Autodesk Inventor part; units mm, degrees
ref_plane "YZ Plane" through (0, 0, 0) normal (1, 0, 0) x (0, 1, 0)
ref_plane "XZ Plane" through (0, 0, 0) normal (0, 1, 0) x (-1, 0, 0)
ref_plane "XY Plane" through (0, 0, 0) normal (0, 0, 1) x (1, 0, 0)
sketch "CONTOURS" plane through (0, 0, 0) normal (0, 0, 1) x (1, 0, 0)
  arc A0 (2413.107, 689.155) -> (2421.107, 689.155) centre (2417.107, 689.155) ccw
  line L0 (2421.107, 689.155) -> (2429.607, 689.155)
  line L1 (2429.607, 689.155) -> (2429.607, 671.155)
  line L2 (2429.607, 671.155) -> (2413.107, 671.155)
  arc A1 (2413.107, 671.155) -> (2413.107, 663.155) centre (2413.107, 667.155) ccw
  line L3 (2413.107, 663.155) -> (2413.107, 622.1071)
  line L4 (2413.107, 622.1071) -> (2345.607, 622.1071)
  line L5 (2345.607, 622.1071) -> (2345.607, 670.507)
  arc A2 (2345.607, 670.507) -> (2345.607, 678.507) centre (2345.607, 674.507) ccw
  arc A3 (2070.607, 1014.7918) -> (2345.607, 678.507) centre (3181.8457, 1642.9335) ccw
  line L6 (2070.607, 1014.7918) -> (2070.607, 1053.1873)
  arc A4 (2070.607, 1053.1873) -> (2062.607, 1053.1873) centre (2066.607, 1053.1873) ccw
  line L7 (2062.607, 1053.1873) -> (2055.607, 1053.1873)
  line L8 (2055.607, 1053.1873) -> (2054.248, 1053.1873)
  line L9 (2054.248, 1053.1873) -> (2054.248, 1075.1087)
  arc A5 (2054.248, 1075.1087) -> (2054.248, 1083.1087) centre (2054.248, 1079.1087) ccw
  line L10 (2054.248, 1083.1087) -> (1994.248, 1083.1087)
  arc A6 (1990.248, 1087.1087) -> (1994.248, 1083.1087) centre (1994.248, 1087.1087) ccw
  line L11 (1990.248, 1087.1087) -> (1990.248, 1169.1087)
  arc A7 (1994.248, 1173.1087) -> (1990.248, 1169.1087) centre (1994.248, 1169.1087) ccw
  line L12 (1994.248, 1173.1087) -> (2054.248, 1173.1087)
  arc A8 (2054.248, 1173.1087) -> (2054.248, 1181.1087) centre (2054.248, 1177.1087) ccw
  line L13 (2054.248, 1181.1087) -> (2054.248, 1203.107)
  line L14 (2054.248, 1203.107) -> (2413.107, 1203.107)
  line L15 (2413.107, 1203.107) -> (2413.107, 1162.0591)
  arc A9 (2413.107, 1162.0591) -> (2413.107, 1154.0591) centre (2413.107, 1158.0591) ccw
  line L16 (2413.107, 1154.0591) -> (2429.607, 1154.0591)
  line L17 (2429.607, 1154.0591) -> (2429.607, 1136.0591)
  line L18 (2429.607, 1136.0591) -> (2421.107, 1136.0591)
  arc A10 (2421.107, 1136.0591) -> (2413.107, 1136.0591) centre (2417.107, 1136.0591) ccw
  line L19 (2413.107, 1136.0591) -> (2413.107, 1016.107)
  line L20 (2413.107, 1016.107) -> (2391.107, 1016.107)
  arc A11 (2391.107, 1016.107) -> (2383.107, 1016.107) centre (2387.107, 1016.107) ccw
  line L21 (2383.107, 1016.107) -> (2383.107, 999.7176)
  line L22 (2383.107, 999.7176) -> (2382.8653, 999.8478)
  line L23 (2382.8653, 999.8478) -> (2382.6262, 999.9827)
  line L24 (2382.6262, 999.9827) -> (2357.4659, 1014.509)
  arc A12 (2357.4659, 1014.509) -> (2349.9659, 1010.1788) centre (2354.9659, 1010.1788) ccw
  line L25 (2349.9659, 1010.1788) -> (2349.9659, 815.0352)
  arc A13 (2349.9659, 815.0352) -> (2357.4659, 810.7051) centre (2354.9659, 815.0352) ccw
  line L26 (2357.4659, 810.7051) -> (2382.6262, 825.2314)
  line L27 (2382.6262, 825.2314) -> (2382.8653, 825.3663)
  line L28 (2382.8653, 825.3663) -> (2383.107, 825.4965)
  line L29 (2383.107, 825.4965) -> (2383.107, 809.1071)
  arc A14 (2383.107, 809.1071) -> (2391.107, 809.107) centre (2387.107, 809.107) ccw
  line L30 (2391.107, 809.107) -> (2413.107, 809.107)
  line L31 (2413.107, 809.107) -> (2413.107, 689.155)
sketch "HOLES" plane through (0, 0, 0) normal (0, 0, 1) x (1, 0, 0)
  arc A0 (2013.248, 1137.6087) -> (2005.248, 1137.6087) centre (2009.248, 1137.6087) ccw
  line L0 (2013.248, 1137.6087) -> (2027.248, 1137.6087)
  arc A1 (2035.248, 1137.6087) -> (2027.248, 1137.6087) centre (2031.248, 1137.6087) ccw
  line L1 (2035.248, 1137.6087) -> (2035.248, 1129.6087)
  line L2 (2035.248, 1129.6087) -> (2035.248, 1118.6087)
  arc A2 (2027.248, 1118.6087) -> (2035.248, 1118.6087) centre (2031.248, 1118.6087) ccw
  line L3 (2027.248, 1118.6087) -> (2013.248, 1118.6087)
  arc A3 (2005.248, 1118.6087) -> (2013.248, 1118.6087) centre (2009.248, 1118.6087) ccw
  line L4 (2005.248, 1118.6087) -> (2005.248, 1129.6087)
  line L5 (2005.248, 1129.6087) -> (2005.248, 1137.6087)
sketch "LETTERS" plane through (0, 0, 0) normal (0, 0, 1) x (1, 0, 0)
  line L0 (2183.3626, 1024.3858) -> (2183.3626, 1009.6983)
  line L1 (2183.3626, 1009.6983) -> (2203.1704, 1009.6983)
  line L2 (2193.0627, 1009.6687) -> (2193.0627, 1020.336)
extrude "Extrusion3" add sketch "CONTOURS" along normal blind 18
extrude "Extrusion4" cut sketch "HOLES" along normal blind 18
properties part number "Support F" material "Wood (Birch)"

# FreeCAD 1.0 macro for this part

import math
import FreeCAD as App
import Part
import Sketcher
from FreeCAD import Vector
Q = App.Units.Quantity

doc = App.newDocument("Part")
params = doc.addObject("Spreadsheet::Sheet", "Params")
for row, (alias, value) in enumerate([
    ("sketch1_radius", "4 mm"),
    ("sketch1_radius2", "5 mm"),
    ("sketch1_width", "22 mm"),
    ("sketch1_width2", "60 mm"),
    ("sketch1_height", "18 mm"),
    ("pad1_length", "18 mm"),
    ("sketch2_radius", "4 mm"),
    ("sketch2_width", "14 mm"),
    ("sketch2_height", "19 mm"),
    ("pocket1_length", "18 mm"),
], start=1):
    params.set(f"A{row}", alias)
    params.set(f"B{row}", "=" + value)
    params.setAlias(f"B{row}", alias)

body = doc.addObject("PartDesign::Body", "Body")

sketch1 = body.newObject("Sketcher::SketchObject", "Sketch")
sketch1.AttachmentSupport = (doc.getObject("XY_Plane"), [""])
sketch1.MapMode = "FlatFace"
sketch1.addGeometry([
    Part.ArcOfCircle(Part.Circle(Vector(2417.107, 689.155, 0), Vector(0, 0, 1), 4), math.radians(180), math.radians(360)),
    Part.LineSegment(Vector(2413.107, 689.155, 0), Vector(2413.107, 809.107, 0)),
    Part.LineSegment(Vector(2413.107, 809.107, 0), Vector(2391.107, 809.107, 0)),
    Part.ArcOfCircle(Part.Circle(Vector(2387.107, 809.107, 0), Vector(0, 0, 1), 4), math.radians(179.998568), math.radians(360)),
    Part.LineSegment(Vector(2383.107, 809.1071, 0), Vector(2383.107, 825.4965, 0)),
    Part.LineSegment(Vector(2383.107, 825.4965, 0), Vector(2382.8653, 825.3663, 0)),
    Part.LineSegment(Vector(2382.8653, 825.3663, 0), Vector(2382.6262, 825.2314, 0)),
    Part.LineSegment(Vector(2382.6262, 825.2314, 0), Vector(2357.4659, 810.7051, 0)),
    Part.ArcOfCircle(Part.Circle(Vector(2354.9659, 815.0352, 0), Vector(0, 0, 1), 5), math.radians(180), math.radians(300.000155)),
    Part.LineSegment(Vector(2349.9659, 815.0352, 0), Vector(2349.9659, 1010.1788, 0)),
    Part.ArcOfCircle(Part.Circle(Vector(2354.9659, 1010.1788, 0), Vector(0, 0, 1), 5.000063), math.radians(60.000418), math.radians(180)),
    Part.LineSegment(Vector(2357.4659, 1014.509, 0), Vector(2382.6262, 999.9827, 0)),
    Part.LineSegment(Vector(2382.6262, 999.9827, 0), Vector(2382.8653, 999.8478, 0)),
    Part.LineSegment(Vector(2382.8653, 999.8478, 0), Vector(2383.107, 999.7176, 0)),
    Part.LineSegment(Vector(2383.107, 999.7176, 0), Vector(2383.107, 1016.107, 0)),
    Part.ArcOfCircle(Part.Circle(Vector(2387.107, 1016.107, 0), Vector(0, 0, 1), 4), math.radians(0), math.radians(180)),
    Part.LineSegment(Vector(2391.107, 1016.107, 0), Vector(2413.107, 1016.107, 0)),
    Part.LineSegment(Vector(2413.107, 1016.107, 0), Vector(2413.107, 1136.0591, 0)),
    Part.ArcOfCircle(Part.Circle(Vector(2417.107, 1136.0591, 0), Vector(0, 0, 1), 4), math.radians(0), math.radians(180)),
    Part.LineSegment(Vector(2421.107, 1136.0591, 0), Vector(2429.607, 1136.0591, 0)),
    Part.LineSegment(Vector(2429.607, 1136.0591, 0), Vector(2429.607, 1154.0591, 0)),
    Part.LineSegment(Vector(2429.607, 1154.0591, 0), Vector(2413.107, 1154.0591, 0)),
    Part.ArcOfCircle(Part.Circle(Vector(2413.107, 1158.0591, 0), Vector(0, 0, 1), 4), math.radians(90), math.radians(270)),
    Part.LineSegment(Vector(2413.107, 1162.0591, 0), Vector(2413.107, 1203.107, 0)),
    Part.LineSegment(Vector(2413.107, 1203.107, 0), Vector(2054.248, 1203.107, 0)),
    Part.LineSegment(Vector(2054.248, 1203.107, 0), Vector(2054.248, 1181.1087, 0)),
    Part.ArcOfCircle(Part.Circle(Vector(2054.248, 1177.1087, 0), Vector(0, 0, 1), 4), math.radians(-90), math.radians(90)),
    Part.LineSegment(Vector(2054.248, 1173.1087, 0), Vector(1994.248, 1173.1087, 0)),
    Part.ArcOfCircle(Part.Circle(Vector(1994.248, 1169.1087, 0), Vector(0, 0, 1), 4), math.radians(90), math.radians(180)),
    Part.LineSegment(Vector(1990.248, 1169.1087, 0), Vector(1990.248, 1087.1087, 0)),
    Part.ArcOfCircle(Part.Circle(Vector(1994.248, 1087.1087, 0), Vector(0, 0, 1), 4), math.radians(180), math.radians(270)),
    Part.LineSegment(Vector(1994.248, 1083.1087, 0), Vector(2054.248, 1083.1087, 0)),
    Part.ArcOfCircle(Part.Circle(Vector(2054.248, 1079.1087, 0), Vector(0, 0, 1), 4), math.radians(-90), math.radians(90)),
    Part.LineSegment(Vector(2054.248, 1075.1087, 0), Vector(2054.248, 1053.1873, 0)),
    Part.LineSegment(Vector(2054.248, 1053.1873, 0), Vector(2062.607, 1053.1873, 0)),
    Part.ArcOfCircle(Part.Circle(Vector(2066.607, 1053.1873, 0), Vector(0, 0, 1), 4), math.radians(0), math.radians(180)),
    Part.LineSegment(Vector(2070.607, 1053.1873, 0), Vector(2070.607, 1014.7918, 0)),
    Part.ArcOfCircle(Part.Circle(Vector(3181.847854, 1642.934974, 0), Vector(0, 0, 1), 1276.4874), math.radians(-150.522137), math.radians(-130.928062)),
    Part.ArcOfCircle(Part.Circle(Vector(2345.607, 674.507, 0), Vector(0, 0, 1), 4), math.radians(-90), math.radians(90)),
    Part.LineSegment(Vector(2345.607, 670.507, 0), Vector(2345.607, 622.1071, 0)),
    Part.LineSegment(Vector(2345.607, 622.1071, 0), Vector(2413.107, 622.1071, 0)),
    Part.LineSegment(Vector(2413.107, 622.1071, 0), Vector(2413.107, 663.155, 0)),
    Part.ArcOfCircle(Part.Circle(Vector(2413.107, 667.155, 0), Vector(0, 0, 1), 4), math.radians(90), math.radians(270)),
    Part.LineSegment(Vector(2413.107, 671.155, 0), Vector(2429.607, 671.155, 0)),
    Part.LineSegment(Vector(2429.607, 671.155, 0), Vector(2429.607, 689.155, 0)),
    Part.LineSegment(Vector(2429.607, 689.155, 0), Vector(2421.107, 689.155, 0)),
], False)
sketch1.addConstraint([
    Sketcher.Constraint("Tangent", 0, 1, 1, 1),
    Sketcher.Constraint("Coincident", 1, 2, 2, 1),
    Sketcher.Constraint("Coincident", 2, 2, 3, 2),
    Sketcher.Constraint("Tangent", 3, 1, 4, 1),
    Sketcher.Constraint("Coincident", 4, 2, 5, 1),
    Sketcher.Constraint("Coincident", 5, 2, 6, 1),
    Sketcher.Constraint("Coincident", 6, 2, 7, 1),
    Sketcher.Constraint("Tangent", 7, 2, 8, 2),
    Sketcher.Constraint("Tangent", 8, 1, 9, 1),
    Sketcher.Constraint("Tangent", 9, 2, 10, 2),
    Sketcher.Constraint("Tangent", 10, 1, 11, 1),
    Sketcher.Constraint("Coincident", 11, 2, 12, 1),
    Sketcher.Constraint("Coincident", 12, 2, 13, 1),
    Sketcher.Constraint("Coincident", 13, 2, 14, 1),
    Sketcher.Constraint("Tangent", 14, 2, 15, 2),
    Sketcher.Constraint("Coincident", 15, 1, 16, 1),
    Sketcher.Constraint("Coincident", 16, 2, 17, 1),
    Sketcher.Constraint("Tangent", 17, 2, 18, 2),
    Sketcher.Constraint("Coincident", 18, 1, 19, 1),
    Sketcher.Constraint("Coincident", 19, 2, 20, 1),
    Sketcher.Constraint("Coincident", 20, 2, 21, 1),
    Sketcher.Constraint("Tangent", 21, 2, 22, 2),
    Sketcher.Constraint("Coincident", 22, 1, 23, 1),
    Sketcher.Constraint("Coincident", 23, 2, 24, 1),
    Sketcher.Constraint("Coincident", 24, 2, 25, 1),
    Sketcher.Constraint("Coincident", 25, 2, 26, 2),
    Sketcher.Constraint("Tangent", 26, 1, 27, 1),
    Sketcher.Constraint("Tangent", 27, 2, 28, 1),
    Sketcher.Constraint("Tangent", 28, 2, 29, 1),
    Sketcher.Constraint("Tangent", 29, 2, 30, 1),
    Sketcher.Constraint("Tangent", 30, 2, 31, 1),
    Sketcher.Constraint("Tangent", 31, 2, 32, 2),
    Sketcher.Constraint("Coincident", 32, 1, 33, 1),
    Sketcher.Constraint("Coincident", 33, 2, 34, 1),
    Sketcher.Constraint("Coincident", 34, 2, 35, 2),
    Sketcher.Constraint("Tangent", 35, 1, 36, 1),
    Sketcher.Constraint("Coincident", 36, 2, 37, 1),
    Sketcher.Constraint("Coincident", 37, 2, 38, 2),
    Sketcher.Constraint("Coincident", 38, 1, 39, 1),
    Sketcher.Constraint("Coincident", 39, 2, 40, 1),
    Sketcher.Constraint("Coincident", 40, 2, 41, 1),
    Sketcher.Constraint("Coincident", 41, 2, 42, 2),
    Sketcher.Constraint("Tangent", 42, 1, 43, 1),
    Sketcher.Constraint("Coincident", 43, 2, 44, 1),
    Sketcher.Constraint("Coincident", 44, 2, 45, 1),
    Sketcher.Constraint("Coincident", 45, 2, 0, 2),
    Sketcher.Constraint("Vertical", 1),
    Sketcher.Constraint("Horizontal", 2),
    Sketcher.Constraint("Vertical", 4),
    Sketcher.Constraint("Vertical", 9),
    Sketcher.Constraint("Vertical", 14),
    Sketcher.Constraint("Horizontal", 16),
    Sketcher.Constraint("Vertical", 17),
    Sketcher.Constraint("Horizontal", 19),
    Sketcher.Constraint("Vertical", 20),
    Sketcher.Constraint("Horizontal", 21),
    Sketcher.Constraint("Vertical", 23),
    Sketcher.Constraint("Horizontal", 24),
    Sketcher.Constraint("Vertical", 25),
    Sketcher.Constraint("Horizontal", 27),
    Sketcher.Constraint("Vertical", 29),
    Sketcher.Constraint("Horizontal", 31),
    Sketcher.Constraint("Vertical", 33),
    Sketcher.Constraint("Horizontal", 34),
    Sketcher.Constraint("Vertical", 36),
    Sketcher.Constraint("Vertical", 39),
    Sketcher.Constraint("Horizontal", 40),
    Sketcher.Constraint("Vertical", 41),
    Sketcher.Constraint("Horizontal", 43),
    Sketcher.Constraint("Vertical", 44),
    Sketcher.Constraint("Horizontal", 45),
    Sketcher.Constraint("Equal", 0, 3),
    Sketcher.Constraint("Equal", 8, 10),
    Sketcher.Constraint("Equal", 3, 15),
    Sketcher.Constraint("Equal", 15, 18),
    Sketcher.Constraint("Equal", 18, 22),
    Sketcher.Constraint("Equal", 22, 26),
    Sketcher.Constraint("Equal", 26, 28),
    Sketcher.Constraint("Equal", 28, 30),
    Sketcher.Constraint("Equal", 30, 32),
    Sketcher.Constraint("Equal", 32, 35),
    Sketcher.Constraint("Equal", 35, 38),
    Sketcher.Constraint("Equal", 38, 42),
    Sketcher.Constraint("Horizontal", 3, 3, 1, 2),
    Sketcher.Constraint("Horizontal", 14, 2, 15, 1),
    Sketcher.Constraint("Horizontal", 17, 2, 18, 1),
    Sketcher.Constraint("Horizontal", 35, 3, 33, 2),
    Sketcher.Constraint("Horizontal", 0, 1, 44, 2),
    Sketcher.Constraint("Vertical", 3, 3, 15, 3),
    Sketcher.Constraint("Vertical", 0, 3, 18, 3),
    Sketcher.Constraint("Vertical", 26, 3, 32, 3),
    Sketcher.Constraint("Vertical", 22, 3, 42, 3),
    Sketcher.Constraint("Vertical", 42, 3, 0, 1),
    Sketcher.Constraint("Vertical", 7, 2, 10, 1),
    Sketcher.Constraint("Vertical", 6, 2, 11, 2),
    Sketcher.Constraint("Vertical", 5, 2, 12, 2),
    Sketcher.Constraint("Vertical", 21, 2, 22, 1),
    Sketcher.Constraint("Vertical", 32, 3, 24, 2),
    Sketcher.Constraint("Vertical", 31, 2, 32, 1),
    Sketcher.Constraint("Vertical", 23, 2, 40, 2),
    Sketcher.Constraint("Vertical", 20, 2, 43, 2),
    Sketcher.Constraint("Equal", 4, 14),
    Sketcher.Constraint("Equal", 1, 17),
    Sketcher.Constraint("Equal", 23, 41),
    Sketcher.Constraint("Equal", 20, 44),
    Sketcher.Constraint("Equal", 5, 6),
    Sketcher.Constraint("Equal", 6, 12),
    Sketcher.Constraint("Equal", 12, 13),
    Sketcher.Constraint("Radius", 0, Q("4 mm")),
    Sketcher.Constraint("Radius", 8, Q("5 mm")),
    Sketcher.Constraint("DistanceX", 2, 2, 2, 1, Q("22 mm")),
    Sketcher.Constraint("DistanceX", 27, 2, 27, 1, Q("60 mm")),
    Sketcher.Constraint("DistanceY", 20, 1, 20, 2, Q("18 mm")),
    Sketcher.Constraint("DistanceY", 29, 2, 29, 1, Q("82 mm")),
    Sketcher.Constraint("Angle", 7, Q("-150 deg")),
    Sketcher.Constraint("DistanceX", 19, 1, 19, 2, Q("8.5 mm")),
    Sketcher.Constraint("DistanceX", 40, 1, 40, 2, Q("67.5 mm")),
    Sketcher.Constraint("DistanceY", 39, 2, 39, 1, Q("48.4 mm")),
    Sketcher.Constraint("Angle", 5, Q("-151.6893 deg")),
    Sketcher.Constraint("Radius", 37, Q("1276.4874 mm")),
    Sketcher.Constraint("DistanceX", 24, 2, 24, 1, Q("358.859 mm")),
    Sketcher.Constraint("DistanceX", 34, 1, 34, 2, Q("8.359 mm")),
    Sketcher.Constraint("DistanceY", 1, 1, 1, 2, Q("119.952 mm")),
    Sketcher.Constraint("DistanceY", 23, 1, 23, 2, Q("41.048 mm")),
    Sketcher.Constraint("DistanceY", 4, 1, 4, 2, Q("16.3894 mm")),
    Sketcher.Constraint("DistanceY", 9, 1, 9, 2, Q("195.1436 mm")),
    Sketcher.Constraint("DistanceY", 25, 2, 25, 1, Q("21.9983 mm")),
    Sketcher.Constraint("DistanceY", 33, 2, 33, 1, Q("21.9214 mm")),
    Sketcher.Constraint("DistanceY", 36, 2, 36, 1, Q("38.3955 mm")),
    Sketcher.Constraint("DistanceX", -1, 1, 0, 3, Q("2417.107 mm")),
    Sketcher.Constraint("DistanceY", -1, 1, 0, 3, Q("689.155 mm")),
    Sketcher.Constraint("DistanceX", -1, 1, 8, 3, Q("2354.966 mm")),
    Sketcher.Constraint("DistanceY", -1, 1, 15, 3, Q("1016.107 mm")),
    Sketcher.Constraint("DistanceY", -1, 1, 37, 3, Q("1642.935 mm")),
    Sketcher.Constraint("DistanceX", -1, 1, 38, 3, Q("2345.607 mm")),
    Sketcher.Constraint("Distance", 5, Q("0.2745 mm")),
])
sketch1.setExpression("Constraints[108]", "Params.sketch1_radius")
sketch1.setExpression("Constraints[109]", "Params.sketch1_radius2")
sketch1.setExpression("Constraints[110]", "Params.sketch1_width")
sketch1.setExpression("Constraints[111]", "Params.sketch1_width2")
sketch1.setExpression("Constraints[112]", "Params.sketch1_height")
pad1 = body.newObject("PartDesign::Pad", "Pad")
pad1.Profile = sketch1
pad1.setExpression("Length", "Params.pad1_length")

sketch2 = body.newObject("Sketcher::SketchObject", "Sketch001")
sketch2.AttachmentSupport = (doc.getObject("XY_Plane"), [""])
sketch2.MapMode = "FlatFace"
sketch2.addGeometry([
    Part.LineSegment(Vector(2027.248, 1137.6087, 0), Vector(2013.248, 1137.6087, 0)),
    Part.ArcOfCircle(Part.Circle(Vector(2009.248, 1137.6087, 0), Vector(0, 0, 1), 4), math.radians(0), math.radians(180)),
    Part.LineSegment(Vector(2005.248, 1137.6087, 0), Vector(2005.248, 1118.6087, 0)),
    Part.ArcOfCircle(Part.Circle(Vector(2009.248, 1118.6087, 0), Vector(0, 0, 1), 4), math.radians(180), math.radians(360)),
    Part.LineSegment(Vector(2013.248, 1118.6087, 0), Vector(2027.248, 1118.6087, 0)),
    Part.ArcOfCircle(Part.Circle(Vector(2031.248, 1118.6087, 0), Vector(0, 0, 1), 4), math.radians(180), math.radians(360)),
    Part.LineSegment(Vector(2035.248, 1118.6087, 0), Vector(2035.248, 1137.6087, 0)),
    Part.ArcOfCircle(Part.Circle(Vector(2031.248, 1137.6087, 0), Vector(0, 0, 1), 4), math.radians(0), math.radians(180)),
], False)
sketch2.addConstraint([
    Sketcher.Constraint("Coincident", 0, 2, 1, 1),
    Sketcher.Constraint("Tangent", 1, 2, 2, 1),
    Sketcher.Constraint("Tangent", 2, 2, 3, 1),
    Sketcher.Constraint("Coincident", 3, 2, 4, 1),
    Sketcher.Constraint("Coincident", 4, 2, 5, 1),
    Sketcher.Constraint("Tangent", 5, 2, 6, 1),
    Sketcher.Constraint("Tangent", 6, 2, 7, 1),
    Sketcher.Constraint("Coincident", 7, 2, 0, 1),
    Sketcher.Constraint("Horizontal", 0),
    Sketcher.Constraint("Vertical", 2),
    Sketcher.Constraint("Horizontal", 4),
    Sketcher.Constraint("Vertical", 6),
    Sketcher.Constraint("Equal", 1, 3),
    Sketcher.Constraint("Equal", 3, 5),
    Sketcher.Constraint("Equal", 5, 7),
    Sketcher.Constraint("Horizontal", 3, 3, 5, 3),
    Sketcher.Constraint("Horizontal", 1, 3, 7, 3),
    Sketcher.Constraint("Horizontal", 7, 3, 0, 2),
    Sketcher.Constraint("Horizontal", 2, 2, 3, 2),
    Sketcher.Constraint("Radius", 1, Q("4 mm")),
    Sketcher.Constraint("DistanceX", 0, 2, 0, 1, Q("14 mm")),
    Sketcher.Constraint("DistanceY", 2, 2, 2, 1, Q("19 mm")),
    Sketcher.Constraint("DistanceX", -1, 1, 1, 3, Q("2009.248 mm")),
    Sketcher.Constraint("DistanceY", -1, 1, 1, 3, Q("1137.6087 mm")),
])
sketch2.setExpression("Constraints[19]", "Params.sketch2_radius")
sketch2.setExpression("Constraints[20]", "Params.sketch2_width")
sketch2.setExpression("Constraints[21]", "Params.sketch2_height")
pocket1 = body.newObject("PartDesign::Pocket", "Pocket")
pocket1.Profile = sketch2
pocket1.setExpression("Length", "Params.pocket1_length")
pocket1.Reversed = True

doc.recompute()
